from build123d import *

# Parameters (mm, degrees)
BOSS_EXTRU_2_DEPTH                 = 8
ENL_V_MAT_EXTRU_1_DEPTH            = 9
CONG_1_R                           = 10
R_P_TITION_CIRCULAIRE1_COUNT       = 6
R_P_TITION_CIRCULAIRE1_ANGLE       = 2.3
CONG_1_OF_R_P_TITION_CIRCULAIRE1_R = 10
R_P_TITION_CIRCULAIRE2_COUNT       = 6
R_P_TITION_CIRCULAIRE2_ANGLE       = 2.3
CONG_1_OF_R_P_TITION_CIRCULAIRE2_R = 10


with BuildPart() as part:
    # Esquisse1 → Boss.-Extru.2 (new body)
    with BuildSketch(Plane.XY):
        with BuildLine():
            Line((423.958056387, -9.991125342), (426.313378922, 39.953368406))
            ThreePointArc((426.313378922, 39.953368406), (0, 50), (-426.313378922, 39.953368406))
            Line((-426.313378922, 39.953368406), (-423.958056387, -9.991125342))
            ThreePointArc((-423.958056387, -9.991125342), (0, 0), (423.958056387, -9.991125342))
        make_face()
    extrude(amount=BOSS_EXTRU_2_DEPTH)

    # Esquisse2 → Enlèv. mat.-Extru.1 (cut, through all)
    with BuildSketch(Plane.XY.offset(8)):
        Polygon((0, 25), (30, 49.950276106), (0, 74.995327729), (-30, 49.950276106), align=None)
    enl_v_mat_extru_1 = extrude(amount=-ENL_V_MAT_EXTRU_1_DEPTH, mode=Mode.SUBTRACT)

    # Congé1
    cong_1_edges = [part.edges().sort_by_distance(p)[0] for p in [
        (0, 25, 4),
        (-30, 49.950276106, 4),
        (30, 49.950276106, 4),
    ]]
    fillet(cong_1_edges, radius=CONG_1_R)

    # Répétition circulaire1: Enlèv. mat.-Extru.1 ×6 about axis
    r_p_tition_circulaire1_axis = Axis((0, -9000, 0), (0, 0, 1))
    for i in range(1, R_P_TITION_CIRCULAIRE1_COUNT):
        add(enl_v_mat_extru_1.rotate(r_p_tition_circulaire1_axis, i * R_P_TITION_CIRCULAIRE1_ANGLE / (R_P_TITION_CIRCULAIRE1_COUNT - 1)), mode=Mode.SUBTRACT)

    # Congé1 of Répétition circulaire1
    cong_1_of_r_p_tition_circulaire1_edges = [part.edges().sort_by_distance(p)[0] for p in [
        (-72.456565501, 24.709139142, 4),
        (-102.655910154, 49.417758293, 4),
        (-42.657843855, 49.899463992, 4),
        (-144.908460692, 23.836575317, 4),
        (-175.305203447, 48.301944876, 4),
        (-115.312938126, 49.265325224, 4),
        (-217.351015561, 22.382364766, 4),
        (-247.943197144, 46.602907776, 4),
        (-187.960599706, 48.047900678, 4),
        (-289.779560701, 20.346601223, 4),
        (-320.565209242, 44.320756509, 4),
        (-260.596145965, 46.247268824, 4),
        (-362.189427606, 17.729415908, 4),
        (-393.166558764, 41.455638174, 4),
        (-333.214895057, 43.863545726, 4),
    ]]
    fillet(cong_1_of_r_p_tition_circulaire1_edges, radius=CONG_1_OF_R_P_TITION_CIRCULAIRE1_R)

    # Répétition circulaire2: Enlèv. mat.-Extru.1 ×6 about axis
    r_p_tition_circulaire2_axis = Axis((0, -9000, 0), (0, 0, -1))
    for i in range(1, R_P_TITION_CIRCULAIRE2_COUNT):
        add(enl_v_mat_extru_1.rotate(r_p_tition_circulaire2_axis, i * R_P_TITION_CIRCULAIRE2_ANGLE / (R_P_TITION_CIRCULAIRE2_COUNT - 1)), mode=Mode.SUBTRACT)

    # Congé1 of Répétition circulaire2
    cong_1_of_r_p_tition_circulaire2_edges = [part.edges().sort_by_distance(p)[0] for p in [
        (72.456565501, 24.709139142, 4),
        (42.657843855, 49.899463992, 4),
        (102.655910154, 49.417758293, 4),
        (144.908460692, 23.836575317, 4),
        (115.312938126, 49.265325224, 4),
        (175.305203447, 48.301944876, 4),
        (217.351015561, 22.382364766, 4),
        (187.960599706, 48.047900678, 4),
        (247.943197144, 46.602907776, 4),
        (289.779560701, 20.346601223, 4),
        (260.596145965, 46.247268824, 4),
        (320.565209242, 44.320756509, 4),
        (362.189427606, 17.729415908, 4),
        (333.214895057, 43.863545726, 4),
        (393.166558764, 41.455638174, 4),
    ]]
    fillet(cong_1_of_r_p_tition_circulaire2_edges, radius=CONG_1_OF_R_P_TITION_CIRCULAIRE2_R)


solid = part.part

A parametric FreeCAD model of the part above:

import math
import FreeCAD as App
import Part
import Sketcher

V = App.Vector
Q = App.Units.Quantity


def edges_at(feature, points):
    """Names of the edges that pass closest to the given points."""
    edges = feature.Shape.Edges
    near = lambda p: min(range(len(edges)), key=lambda i: edges[i].distToShape(Part.Vertex(*p))[0])
    return sorted({f"Edge{near(p) + 1}" for p in points})

doc = App.newDocument("Part")
params = doc.addObject("Spreadsheet::Sheet", "Params")
for row, (alias, value) in enumerate([
    ("sketch1_radius", "9050 mm"),
    ("sketch1_radius2", "9000 mm"),
    ("pad1_length", "8 mm"),
    ("fillet_radius", "10 mm"),
    ("fillet2_radius", "10 mm"),
    ("fillet3_radius", "10 mm"),
], start=1):
    params.set(f"A{row}", alias)
    params.set(f"B{row}", "=" + value)
    params.setAlias(f"B{row}", alias)

body = doc.addObject("PartDesign::Body", "Body")

# Sketch on XY plane
sketch1 = doc.addObject("Sketcher::SketchObject", "Sketch")
body.addObject(sketch1)
sketch1.AttachmentSupport = (doc.XY_Plane, [""])
sketch1.MapMode = "FlatFace"
sketch1.addGeometry(Part.LineSegment(V(424, -10, 0), V(426, 40, 0)), False)
sketch1.addGeometry(Part.ArcOfCircle(Part.Circle(V(0, -9000, 0), V(0, 0, 1), 9050), math.radians(87.3), math.radians(92.7)), False)
sketch1.addGeometry(Part.LineSegment(V(-426, 40, 0), V(-424, -10, 0)), False)
sketch1.addGeometry(Part.ArcOfCircle(Part.Circle(V(0, -9000, 0), V(0, 0, 1), 9000), math.radians(87.3), math.radians(92.7)), False)
sketch1.addConstraint(Sketcher.Constraint("Coincident", 0, 2, 1, 1))
sketch1.addConstraint(Sketcher.Constraint("Coincident", 1, 2, 2, 1))
sketch1.addConstraint(Sketcher.Constraint("Coincident", 2, 2, 3, 2))
sketch1.addConstraint(Sketcher.Constraint("Coincident", 3, 1, 0, 1))
sketch1.addConstraint(Sketcher.Constraint("Coincident", 3, 3, 1, 3))
sketch1.addConstraint(Sketcher.Constraint("PointOnObject", 1, 3, -2))
sketch1.addConstraint(Sketcher.Constraint("Radius", 1, 9050.0))
sketch1.addConstraint(Sketcher.Constraint("Radius", 3, 9000.0))
sketch1.addConstraint(Sketcher.Constraint("DistanceY", 1, 3, -1, 1, 9000.0))
sketch1.addConstraint(Sketcher.Constraint("Angle", 0, Q("87.3 deg")))
sketch1.addConstraint(Sketcher.Constraint("Angle", 2, Q("-87.3 deg")))
sketch1.addConstraint(Sketcher.Constraint("DistanceX", -1, 1, 0, 2, 426.313379))
sketch1.addConstraint(Sketcher.Constraint("DistanceX", 2, 2, -1, 1, 423.958056))
sketch1.setExpression("Constraints[6]", "Params.sketch1_radius")
sketch1.setExpression("Constraints[7]", "Params.sketch1_radius2")
pad1 = doc.addObject("PartDesign::Pad", "Pad")
body.addObject(pad1)
pad1.Profile = sketch1
pad1.setExpression("Length", "Params.pad1_length")

# Sketch on XY plane
sketch2 = doc.addObject("Sketcher::SketchObject", "Sketch001")
body.addObject(sketch2)
sketch2.AttachmentSupport = (doc.XY_Plane, [""])
sketch2.MapMode = "FlatFace"
sketch2.AttachmentOffset = App.Placement(V(0, 0, 8), App.Rotation())
sketch2.addGeometry(Part.LineSegment(V(0, 25, 0), V(30, 50, 0)), False)
sketch2.addGeometry(Part.LineSegment(V(30, 50, 0), V(0, 75, 0)), False)
sketch2.addGeometry(Part.LineSegment(V(0, 75, 0), V(-30, 50, 0)), False)
sketch2.addGeometry(Part.LineSegment(V(-30, 50, 0), V(0, 25, 0)), False)
sketch2.addConstraint(Sketcher.Constraint("Coincident", 0, 2, 1, 1))
sketch2.addConstraint(Sketcher.Constraint("Coincident", 1, 2, 2, 1))
sketch2.addConstraint(Sketcher.Constraint("Coincident", 2, 2, 3, 1))
sketch2.addConstraint(Sketcher.Constraint("Coincident", 3, 2, 0, 1))
sketch2.addConstraint(Sketcher.Constraint("Symmetric", 0, 2, 2, 2, -2))
sketch2.addConstraint(Sketcher.Constraint("PointOnObject", 1, 2, -2))
sketch2.addConstraint(Sketcher.Constraint("PointOnObject", 3, 2, -2))
sketch2.addConstraint(Sketcher.Constraint("DistanceX", -1, 1, 0, 2, 30.0))
sketch2.addConstraint(Sketcher.Constraint("DistanceY", -1, 1, 3, 2, 25.0))
sketch2.addConstraint(Sketcher.Constraint("DistanceY", 0, 2, 1, 2, 25.045052))
sketch2.addConstraint(Sketcher.Constraint("Distance", 0, 39.019435))
pocket1 = doc.addObject("PartDesign::Pocket", "Pocket")
body.addObject(pocket1)
pocket1.Profile = sketch2
pocket1.Type = "ThroughAll"
doc.recompute()

fillet = doc.addObject("PartDesign::Fillet", "Fillet")
body.addObject(fillet)
fillet.Base = (pocket1, edges_at(pocket1, [(0, 25, 4), (-30, 49.95, 4), (30, 49.95, 4)]))
fillet.setExpression("Radius", "Params.fillet_radius")
doc.recompute()

datumline = doc.addObject("PartDesign::Line", "DatumLine")
body.addObject(datumline)
datumline.Placement = App.Placement(V(0, -9000, 0), App.Rotation(V(0, 0, 1), V(0, 0, 1)))
polarpattern = doc.addObject("PartDesign::PolarPattern", "PolarPattern")
body.addObject(polarpattern)
polarpattern.Originals = [pocket1]
polarpattern.Axis = (datumline, [""])
polarpattern.Angle = 2.3
polarpattern.Occurrences = 6
body.Tip = polarpattern
doc.recompute()

fillet2 = doc.addObject("PartDesign::Fillet", "Fillet001")
body.addObject(fillet2)
fillet2.Base = (polarpattern, edges_at(polarpattern, [
    (-72.457, 24.709, 4),
    (-102.656, 49.418, 4),
    (-42.658, 49.899, 4),
    (-144.908, 23.837, 4),
    (-175.305, 48.302, 4),
    (-115.313, 49.265, 4),
    (-217.351, 22.382, 4),
    (-247.943, 46.603, 4),
    (-187.961, 48.048, 4),
    (-289.78, 20.347, 4),
    (-320.565, 44.321, 4),
    (-260.596, 46.247, 4),
    (-362.189, 17.729, 4),
    (-393.167, 41.456, 4),
    (-333.215, 43.864, 4),
]))
fillet2.setExpression("Radius", "Params.fillet2_radius")
doc.recompute()

datumline2 = doc.addObject("PartDesign::Line", "DatumLine001")
body.addObject(datumline2)
datumline2.Placement = App.Placement(V(0, -9000, 0), App.Rotation(V(0, 0, 1), V(0, 0, -1)))
polarpattern2 = doc.addObject("PartDesign::PolarPattern", "PolarPattern001")
body.addObject(polarpattern2)
polarpattern2.Originals = [pocket1]
polarpattern2.Axis = (datumline2, [""])
polarpattern2.Angle = 2.3
polarpattern2.Occurrences = 6
body.Tip = polarpattern2
doc.recompute()

fillet3 = doc.addObject("PartDesign::Fillet", "Fillet002")
body.addObject(fillet3)
fillet3.Base = (polarpattern2, edges_at(polarpattern2, [
    (72.457, 24.709, 4),
    (42.658, 49.899, 4),
    (102.656, 49.418, 4),
    (144.908, 23.837, 4),
    (115.313, 49.265, 4),
    (175.305, 48.302, 4),
    (217.351, 22.382, 4),
    (187.961, 48.048, 4),
    (247.943, 46.603, 4),
    (289.78, 20.347, 4),
    (260.596, 46.247, 4),
    (320.565, 44.321, 4),
    (362.189, 17.729, 4),
    (333.215, 43.864, 4),
    (393.167, 41.456, 4),
]))
fillet3.setExpression("Radius", "Params.fillet3_radius")

doc.recompute()
